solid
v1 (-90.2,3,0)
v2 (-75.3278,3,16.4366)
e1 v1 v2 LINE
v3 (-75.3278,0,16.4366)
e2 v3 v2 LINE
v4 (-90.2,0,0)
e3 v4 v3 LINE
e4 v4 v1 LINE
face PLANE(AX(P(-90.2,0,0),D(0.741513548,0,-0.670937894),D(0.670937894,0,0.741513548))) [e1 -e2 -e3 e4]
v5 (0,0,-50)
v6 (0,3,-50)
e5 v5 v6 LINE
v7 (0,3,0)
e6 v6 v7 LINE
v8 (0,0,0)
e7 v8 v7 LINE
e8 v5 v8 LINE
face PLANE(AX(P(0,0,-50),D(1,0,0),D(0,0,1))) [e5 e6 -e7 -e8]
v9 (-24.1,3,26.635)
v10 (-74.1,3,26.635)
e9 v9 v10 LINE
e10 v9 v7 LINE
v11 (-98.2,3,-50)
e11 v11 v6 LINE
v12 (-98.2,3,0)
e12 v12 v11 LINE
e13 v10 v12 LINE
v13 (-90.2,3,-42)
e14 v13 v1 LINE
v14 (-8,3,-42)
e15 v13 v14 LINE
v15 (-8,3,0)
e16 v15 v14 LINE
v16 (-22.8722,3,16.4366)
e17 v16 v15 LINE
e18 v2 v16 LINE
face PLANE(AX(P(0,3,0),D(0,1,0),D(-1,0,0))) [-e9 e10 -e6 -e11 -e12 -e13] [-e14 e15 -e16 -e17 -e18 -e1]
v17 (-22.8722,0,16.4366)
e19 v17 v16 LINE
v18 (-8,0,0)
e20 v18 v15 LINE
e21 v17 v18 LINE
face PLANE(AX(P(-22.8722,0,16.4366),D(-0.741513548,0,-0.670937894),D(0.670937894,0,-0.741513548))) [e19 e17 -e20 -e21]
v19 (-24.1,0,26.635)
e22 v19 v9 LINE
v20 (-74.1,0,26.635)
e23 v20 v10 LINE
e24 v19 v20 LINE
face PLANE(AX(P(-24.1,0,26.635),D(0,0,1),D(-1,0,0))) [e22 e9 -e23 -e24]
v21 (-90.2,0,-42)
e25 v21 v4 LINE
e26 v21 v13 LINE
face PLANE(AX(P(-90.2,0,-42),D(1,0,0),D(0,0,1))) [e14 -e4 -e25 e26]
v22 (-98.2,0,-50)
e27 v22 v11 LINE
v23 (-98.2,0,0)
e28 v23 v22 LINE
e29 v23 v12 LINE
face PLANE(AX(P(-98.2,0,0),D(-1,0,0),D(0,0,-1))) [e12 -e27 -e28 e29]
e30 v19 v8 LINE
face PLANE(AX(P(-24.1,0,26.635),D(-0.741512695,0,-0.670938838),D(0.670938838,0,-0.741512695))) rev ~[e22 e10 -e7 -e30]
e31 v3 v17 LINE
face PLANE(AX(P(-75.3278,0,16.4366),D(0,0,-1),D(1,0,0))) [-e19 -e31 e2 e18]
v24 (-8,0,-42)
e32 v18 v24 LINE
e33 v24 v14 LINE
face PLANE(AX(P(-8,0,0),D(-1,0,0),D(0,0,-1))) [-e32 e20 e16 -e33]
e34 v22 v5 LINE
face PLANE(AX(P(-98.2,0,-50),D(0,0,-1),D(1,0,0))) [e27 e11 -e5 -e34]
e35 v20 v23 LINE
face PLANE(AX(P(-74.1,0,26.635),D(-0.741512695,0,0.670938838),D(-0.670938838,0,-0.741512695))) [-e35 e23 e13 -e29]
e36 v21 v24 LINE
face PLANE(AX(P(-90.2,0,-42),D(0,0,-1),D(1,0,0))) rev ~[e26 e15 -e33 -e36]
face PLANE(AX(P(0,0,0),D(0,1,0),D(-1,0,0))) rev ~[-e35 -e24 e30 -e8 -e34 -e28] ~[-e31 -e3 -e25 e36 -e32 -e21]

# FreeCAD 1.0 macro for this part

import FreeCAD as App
import Part
import Sketcher

V = App.Vector
Q = App.Units.Quantity

doc = App.newDocument("Part")
params = doc.addObject("Spreadsheet::Sheet", "Params")
for row, (alias, value) in enumerate([
    ("sketch1_width", "50 mm"),
    ("sketch1_height", "42 mm"),
    ("sketch1_width2", "98.2 mm"),
    ("pad1_length", "3 mm"),
], start=1):
    params.set(f"A{row}", alias)
    params.set(f"B{row}", "=" + value)
    params.setAlias(f"B{row}", alias)

body = doc.addObject("PartDesign::Body", "Body")

# Sketch on XZ plane
sketch1 = doc.addObject("Sketcher::SketchObject", "Sketch")
body.addObject(sketch1)
sketch1.AttachmentSupport = (doc.XZ_Plane, [""])
sketch1.MapMode = "FlatFace"
sketch1.addGeometry([
    Part.LineSegment(V(-98, -50, 0), V(-98, 0, 0)),  # 0
    Part.LineSegment(V(-98, 0, 0), V(-74, 27, 0)),  # 1
    Part.LineSegment(V(-74, 27, 0), V(-24, 27, 0)),  # 2
    Part.LineSegment(V(-24, 27, 0), V(0, 0, 0)),  # 3
    Part.LineSegment(V(0, 0, 0), V(0, -50, 0)),  # 4
    Part.LineSegment(V(0, -50, 0), V(-98, -50, 0)),  # 5
    Part.LineSegment(V(-8, -42, 0), V(-8, 0, 0)),  # 6
    Part.LineSegment(V(-8, 0, 0), V(-23, 16, 0)),  # 7
    Part.LineSegment(V(-23, 16, 0), V(-75, 16, 0)),  # 8
    Part.LineSegment(V(-75, 16, 0), V(-90, 0, 0)),  # 9
    Part.LineSegment(V(-90, 0, 0), V(-90, -42, 0)),  # 10
    Part.LineSegment(V(-90, -42, 0), V(-8, -42, 0)),  # 11
], False)
sketch1.addConstraint([
    Sketcher.Constraint("Coincident", 0, 2, 1, 1),
    Sketcher.Constraint("Coincident", 1, 2, 2, 1),
    Sketcher.Constraint("Coincident", 2, 2, 3, 1),
    Sketcher.Constraint("Coincident", 3, 2, 4, 1),
    Sketcher.Constraint("Coincident", 4, 2, 5, 1),
    Sketcher.Constraint("Coincident", 5, 2, 0, 1),
    Sketcher.Constraint("Coincident", 6, 2, 7, 1),
    Sketcher.Constraint("Coincident", 7, 2, 8, 1),
    Sketcher.Constraint("Coincident", 8, 2, 9, 1),
    Sketcher.Constraint("Coincident", 9, 2, 10, 1),
    Sketcher.Constraint("Coincident", 10, 2, 11, 1),
    Sketcher.Constraint("Coincident", 11, 2, 6, 1),
    Sketcher.Constraint("Vertical", 0),
    Sketcher.Constraint("Horizontal", 2),
    Sketcher.Constraint("Vertical", 4),
    Sketcher.Constraint("Horizontal", 5),
    Sketcher.Constraint("Vertical", 6),
    Sketcher.Constraint("Horizontal", 8),
    Sketcher.Constraint("Vertical", 10),
    Sketcher.Constraint("Horizontal", 11),
    Sketcher.Constraint("Coincident", 3, 2, -1, 1),
    Sketcher.Constraint("PointOnObject", 0, 2, -1),
    Sketcher.Constraint("PointOnObject", 6, 2, -1),
    Sketcher.Constraint("PointOnObject", 9, 2, -1),
    Sketcher.Constraint("Parallel", 3, 7),
    Sketcher.Constraint("Parallel", 1, 9),
    Sketcher.Constraint("Equal", 2, 0),
    Sketcher.Constraint("Equal", 1, 3),
    Sketcher.Constraint("DistanceX", 2, 1, 2, 2, Q("50 mm")),
    Sketcher.Constraint("DistanceY", 6, 1, 6, 2, Q("42 mm")),
    Sketcher.Constraint("DistanceX", 5, 2, 5, 1, Q("98.2 mm")),
    Sketcher.Constraint("DistanceX", 6, 2, -1, 1, Q("8 mm")),
    Sketcher.Constraint("DistanceX", 0, 2, 9, 2, Q("8 mm")),
    Sketcher.Constraint("DistanceY", -1, 1, 1, 2, Q("26.635 mm")),
    Sketcher.Constraint("DistanceX", 8, 2, 8, 1, Q("52.4556 mm")),
])
sketch1.setExpression("Constraints[28]", "Params.sketch1_width")
sketch1.setExpression("Constraints[29]", "Params.sketch1_height")
sketch1.setExpression("Constraints[30]", "Params.sketch1_width2")
pad1 = doc.addObject("PartDesign::Pad", "Pad")
body.addObject(pad1)
pad1.Profile = sketch1
pad1.setExpression("Length", "Params.pad1_length")
pad1.Reversed = True

doc.recompute()
